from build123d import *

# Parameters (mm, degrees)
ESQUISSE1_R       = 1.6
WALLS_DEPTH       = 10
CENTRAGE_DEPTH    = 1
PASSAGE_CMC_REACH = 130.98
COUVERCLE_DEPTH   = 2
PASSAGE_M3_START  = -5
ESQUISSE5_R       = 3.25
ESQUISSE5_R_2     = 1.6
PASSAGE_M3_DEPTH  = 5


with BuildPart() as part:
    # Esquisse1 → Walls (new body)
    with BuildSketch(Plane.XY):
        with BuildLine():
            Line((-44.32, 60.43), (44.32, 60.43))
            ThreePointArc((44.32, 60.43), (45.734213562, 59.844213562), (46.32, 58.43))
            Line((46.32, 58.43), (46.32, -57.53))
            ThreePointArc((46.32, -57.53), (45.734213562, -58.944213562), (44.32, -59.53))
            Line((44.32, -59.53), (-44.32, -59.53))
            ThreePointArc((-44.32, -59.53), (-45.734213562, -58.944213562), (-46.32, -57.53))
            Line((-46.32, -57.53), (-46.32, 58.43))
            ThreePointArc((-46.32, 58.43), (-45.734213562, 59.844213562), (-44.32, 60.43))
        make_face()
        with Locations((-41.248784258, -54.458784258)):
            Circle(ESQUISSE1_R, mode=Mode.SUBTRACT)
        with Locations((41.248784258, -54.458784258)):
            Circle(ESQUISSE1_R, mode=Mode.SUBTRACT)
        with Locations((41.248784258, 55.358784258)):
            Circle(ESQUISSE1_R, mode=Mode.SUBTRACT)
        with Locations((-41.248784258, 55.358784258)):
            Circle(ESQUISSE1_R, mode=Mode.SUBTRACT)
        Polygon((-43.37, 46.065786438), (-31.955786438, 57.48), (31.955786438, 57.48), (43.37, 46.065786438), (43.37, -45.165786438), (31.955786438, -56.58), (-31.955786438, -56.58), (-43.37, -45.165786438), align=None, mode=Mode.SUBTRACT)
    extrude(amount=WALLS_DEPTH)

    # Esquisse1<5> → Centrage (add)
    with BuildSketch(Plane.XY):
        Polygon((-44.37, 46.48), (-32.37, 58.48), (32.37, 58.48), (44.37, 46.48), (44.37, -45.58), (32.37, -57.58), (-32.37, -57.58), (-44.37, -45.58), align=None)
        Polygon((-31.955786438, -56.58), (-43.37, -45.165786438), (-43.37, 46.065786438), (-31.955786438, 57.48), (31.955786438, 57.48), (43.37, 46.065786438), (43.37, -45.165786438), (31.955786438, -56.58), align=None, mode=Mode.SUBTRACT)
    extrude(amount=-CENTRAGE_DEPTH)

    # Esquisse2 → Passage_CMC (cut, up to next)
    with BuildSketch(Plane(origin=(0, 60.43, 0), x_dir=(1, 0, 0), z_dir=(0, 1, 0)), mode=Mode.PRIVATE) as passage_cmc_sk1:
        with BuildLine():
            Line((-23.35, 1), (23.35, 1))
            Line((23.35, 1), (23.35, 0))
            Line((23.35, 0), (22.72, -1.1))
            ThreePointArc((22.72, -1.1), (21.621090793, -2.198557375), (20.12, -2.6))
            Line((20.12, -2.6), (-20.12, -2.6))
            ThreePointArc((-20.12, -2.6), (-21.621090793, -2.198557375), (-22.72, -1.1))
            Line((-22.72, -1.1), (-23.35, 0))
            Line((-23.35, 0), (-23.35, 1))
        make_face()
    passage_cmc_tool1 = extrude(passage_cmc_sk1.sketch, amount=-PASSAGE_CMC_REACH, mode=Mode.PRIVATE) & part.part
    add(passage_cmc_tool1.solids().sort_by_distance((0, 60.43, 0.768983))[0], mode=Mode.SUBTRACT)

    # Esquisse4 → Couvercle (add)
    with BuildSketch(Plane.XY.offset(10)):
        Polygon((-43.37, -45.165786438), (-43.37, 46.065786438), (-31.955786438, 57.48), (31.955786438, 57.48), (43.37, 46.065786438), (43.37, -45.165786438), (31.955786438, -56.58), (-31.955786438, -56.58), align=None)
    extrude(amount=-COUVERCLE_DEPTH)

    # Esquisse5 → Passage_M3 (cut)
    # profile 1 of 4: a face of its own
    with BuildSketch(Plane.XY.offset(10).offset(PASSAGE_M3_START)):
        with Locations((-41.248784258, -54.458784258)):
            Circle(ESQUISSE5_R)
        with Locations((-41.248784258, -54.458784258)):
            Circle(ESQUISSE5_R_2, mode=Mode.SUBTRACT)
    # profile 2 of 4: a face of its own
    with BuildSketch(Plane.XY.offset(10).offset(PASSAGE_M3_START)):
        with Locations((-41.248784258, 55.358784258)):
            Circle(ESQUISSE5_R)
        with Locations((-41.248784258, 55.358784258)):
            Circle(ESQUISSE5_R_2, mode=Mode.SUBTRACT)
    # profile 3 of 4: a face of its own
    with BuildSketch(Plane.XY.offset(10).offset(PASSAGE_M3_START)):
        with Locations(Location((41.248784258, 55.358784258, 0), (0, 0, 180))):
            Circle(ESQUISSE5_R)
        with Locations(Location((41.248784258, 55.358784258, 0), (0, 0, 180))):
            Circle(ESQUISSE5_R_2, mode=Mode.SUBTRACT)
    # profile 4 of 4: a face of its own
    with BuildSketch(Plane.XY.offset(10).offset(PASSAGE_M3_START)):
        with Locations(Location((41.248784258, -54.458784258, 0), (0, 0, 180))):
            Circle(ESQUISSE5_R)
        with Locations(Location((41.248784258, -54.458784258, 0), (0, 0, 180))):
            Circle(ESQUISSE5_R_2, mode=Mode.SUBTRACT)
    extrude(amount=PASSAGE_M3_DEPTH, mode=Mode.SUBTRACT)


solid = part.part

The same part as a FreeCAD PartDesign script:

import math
import FreeCAD as App
import Part
import Sketcher


def add_polygon(sketch, points):
    """Adds a closed chain of lines whose ends are joined by coincident constraints."""
    first, n = sketch.GeometryCount, len(points)
    for a, b in zip(points, points[1:] + points[:1]):
        sketch.addGeometry(Part.LineSegment(App.Vector(*a, 0), App.Vector(*b, 0)), False)
    for i in range(n):
        sketch.addConstraint(Sketcher.Constraint("Coincident", first + i, 2, first + (i + 1) % n, 1))

doc = App.newDocument("Part")
body = doc.addObject("PartDesign::Body", "Body")

# Sketch on XY plane
sketch1 = body.newObject("Sketcher::SketchObject", "Sketch")
sketch1.AttachmentSupport = (doc.getObject("XY_Plane"), [""])
sketch1.MapMode = "FlatFace"
sketch1.addGeometry(Part.LineSegment(App.Vector(44.32, 60.43, 0), App.Vector(-44.32, 60.43, 0)), False)  # 0
sketch1.addGeometry(Part.ArcOfCircle(Part.Circle(App.Vector(-44.32, 58.43, 0), App.Vector(0, 0, 1), 2), math.radians(90), math.radians(180)), False)  # 1
sketch1.addGeometry(Part.LineSegment(App.Vector(-46.32, 58.43, 0), App.Vector(-46.32, -57.53, 0)), False)  # 2
sketch1.addGeometry(Part.ArcOfCircle(Part.Circle(App.Vector(-44.32, -57.53, 0), App.Vector(0, 0, 1), 2), math.radians(-180), math.radians(-90)), False)  # 3
sketch1.addGeometry(Part.LineSegment(App.Vector(-44.32, -59.53, 0), App.Vector(44.32, -59.53, 0)), False)  # 4
sketch1.addGeometry(Part.ArcOfCircle(Part.Circle(App.Vector(44.32, -57.53, 0), App.Vector(0, 0, 1), 2), math.radians(-90), math.radians(0)), False)  # 5
sketch1.addGeometry(Part.LineSegment(App.Vector(46.32, -57.53, 0), App.Vector(46.32, 58.43, 0)), False)  # 6
sketch1.addGeometry(Part.ArcOfCircle(Part.Circle(App.Vector(44.32, 58.43, 0), App.Vector(0, 0, 1), 2), math.radians(0), math.radians(90)), False)  # 7
sketch1.addGeometry(Part.Circle(App.Vector(41.248784, -54.458784, 0), App.Vector(0, 0, 1), 1.6), False)  # 8
sketch1.addGeometry(Part.Circle(App.Vector(-41.248784, -54.458784, 0), App.Vector(0, 0, 1), 1.6), False)  # 9
sketch1.addGeometry(Part.Circle(App.Vector(41.248784, 55.358784, 0), App.Vector(0, 0, 1), 1.6), False)  # 10
add_polygon(sketch1, [(-43.37, 46.065786), (-31.955786, 57.48), (31.955786, 57.48), (43.37, 46.065786), (43.37, -45.165786), (31.955786, -56.58), (-31.955786, -56.58), (-43.37, -45.165786)])  # lines 11-18
sketch1.addGeometry(Part.Circle(App.Vector(-41.248784, 55.358784, 0), App.Vector(0, 0, 1), 1.6), False)  # 19
sketch1.addConstraint(Sketcher.Constraint("Tangent", 0, 2, 1, 1))
sketch1.addConstraint(Sketcher.Constraint("Tangent", 1, 2, 2, 1))
sketch1.addConstraint(Sketcher.Constraint("Tangent", 2, 2, 3, 1))
sketch1.addConstraint(Sketcher.Constraint("Tangent", 3, 2, 4, 1))
sketch1.addConstraint(Sketcher.Constraint("Tangent", 4, 2, 5, 1))
sketch1.addConstraint(Sketcher.Constraint("Tangent", 5, 2, 6, 1))
sketch1.addConstraint(Sketcher.Constraint("Tangent", 6, 2, 7, 1))
sketch1.addConstraint(Sketcher.Constraint("Tangent", 7, 2, 0, 1))
sketch1.addConstraint(Sketcher.Constraint("Horizontal", 0))
sketch1.addConstraint(Sketcher.Constraint("Vertical", 2))
sketch1.addConstraint(Sketcher.Constraint("Horizontal", 4))
sketch1.addConstraint(Sketcher.Constraint("Vertical", 6))
sketch1.addConstraint(Sketcher.Constraint("Horizontal", 12))
sketch1.addConstraint(Sketcher.Constraint("Vertical", 14))
sketch1.addConstraint(Sketcher.Constraint("Horizontal", 16))
sketch1.addConstraint(Sketcher.Constraint("Vertical", 18))
sketch1.addConstraint(Sketcher.Constraint("Equal", 1, 3))
sketch1.addConstraint(Sketcher.Constraint("Equal", 3, 5))
sketch1.addConstraint(Sketcher.Constraint("Equal", 5, 7))
sketch1.addConstraint(Sketcher.Constraint("Equal", 8, 9))
sketch1.addConstraint(Sketcher.Constraint("Equal", 9, 10))
sketch1.addConstraint(Sketcher.Constraint("Equal", 10, 19))
sketch1.addConstraint(Sketcher.Constraint("Symmetric", 8, 3, 9, 3, -2))
sketch1.addConstraint(Sketcher.Constraint("Symmetric", 10, 3, 19, 3, -2))
sketch1.addConstraint(Sketcher.Constraint("Symmetric", 14, 2, 17, 2, -2))
sketch1.addConstraint(Sketcher.Constraint("Perpendicular", 11, 13))
sketch1.addConstraint(Sketcher.Constraint("Perpendicular", 13, 15))
sketch1.addConstraint(Sketcher.Constraint("Perpendicular", 15, 17))
sketch1.addConstraint(Sketcher.Constraint("Horizontal", 13, 2, 18, 2))
sketch1.addConstraint(Sketcher.Constraint("Vertical", 8, 3, 10, 3))
sketch1.addConstraint(Sketcher.Constraint("Vertical", 12, 2, 15, 2))
sketch1.addConstraint(Sketcher.Constraint("Vertical", 11, 2, 16, 2))
sketch1.addConstraint(Sketcher.Constraint("Radius", 1, 2.0))
sketch1.addConstraint(Sketcher.Constraint("Diameter", 8, 3.2))
sketch1.addConstraint(Sketcher.Constraint("DistanceX", 0, 2, 0, 1, 88.64))
sketch1.addConstraint(Sketcher.Constraint("DistanceY", 2, 2, 2, 1, 115.96))
sketch1.addConstraint(Sketcher.Constraint("DistanceX", 1, 3, -1, 1, 44.32))
sketch1.addConstraint(Sketcher.Constraint("DistanceY", -1, 1, 1, 3, 58.43))
sketch1.addConstraint(Sketcher.Constraint("DistanceY", -1, 1, 11, 2, 57.48))
sketch1.addConstraint(Sketcher.Constraint("DistanceX", -1, 1, 13, 2, 43.37))
sketch1.addConstraint(Sketcher.Constraint("DistanceY", 15, 2, -1, 1, 56.58))
sketch1.addConstraint(Sketcher.Constraint("DistanceX", 12, 1, 12, 2, 63.911573))
sketch1.addConstraint(Sketcher.Constraint("DistanceX", 9, 3, 8, 3, 82.497569))
sketch1.addConstraint(Sketcher.Constraint("DistanceY", 8, 3, 10, 3, 109.817569))
sketch1.addConstraint(Sketcher.Constraint("DistanceY", 8, 3, -1, 1, 54.458784))
pad1 = body.newObject("PartDesign::Pad", "Pad")
pad1.Profile = sketch1
pad1.Length = 10

# Sketch on XY plane
sketch2 = body.newObject("Sketcher::SketchObject", "Sketch001")
sketch2.AttachmentSupport = (doc.getObject("XY_Plane"), [""])
sketch2.MapMode = "FlatFace"
add_polygon(sketch2, [(-32.37, 58.48), (-44.37, 46.48), (-44.37, -45.58), (-32.37, -57.58), (32.37, -57.58), (44.37, -45.58), (44.37, 46.48), (32.37, 58.48)])  # lines 0-7
add_polygon(sketch2, [(-31.955786, -56.58), (-43.37, -45.165786), (-43.37, 46.065786), (-31.955786, 57.48), (31.955786, 57.48), (43.37, 46.065786), (43.37, -45.165786), (31.955786, -56.58)])  # lines 8-15
sketch2.addConstraint(Sketcher.Constraint("Vertical", 1))
sketch2.addConstraint(Sketcher.Constraint("Horizontal", 3))
sketch2.addConstraint(Sketcher.Constraint("Vertical", 5))
sketch2.addConstraint(Sketcher.Constraint("Horizontal", 7))
sketch2.addConstraint(Sketcher.Constraint("Vertical", 9))
sketch2.addConstraint(Sketcher.Constraint("Horizontal", 11))
sketch2.addConstraint(Sketcher.Constraint("Vertical", 13))
sketch2.addConstraint(Sketcher.Constraint("Horizontal", 15))
sketch2.addConstraint(Sketcher.Constraint("Symmetric", 1, 2, 4, 2, -2))
sketch2.addConstraint(Sketcher.Constraint("Symmetric", 9, 2, 12, 2, -2))
sketch2.addConstraint(Sketcher.Constraint("Perpendicular", 0, 2))
sketch2.addConstraint(Sketcher.Constraint("Perpendicular", 2, 4))
sketch2.addConstraint(Sketcher.Constraint("Perpendicular", 4, 6))
sketch2.addConstraint(Sketcher.Constraint("Parallel", 6, 8))
sketch2.addConstraint(Sketcher.Constraint("Perpendicular", 8, 10))
sketch2.addConstraint(Sketcher.Constraint("Perpendicular", 10, 12))
sketch2.addConstraint(Sketcher.Constraint("Perpendicular", 12, 14))
sketch2.addConstraint(Sketcher.Constraint("Horizontal", 0, 2, 5, 2))
sketch2.addConstraint(Sketcher.Constraint("Horizontal", 8, 2, 13, 2))
sketch2.addConstraint(Sketcher.Constraint("Vertical", 3, 2, 6, 2))
sketch2.addConstraint(Sketcher.Constraint("Vertical", 2, 2, 7, 2))
sketch2.addConstraint(Sketcher.Constraint("Vertical", 11, 2, 14, 2))
sketch2.addConstraint(Sketcher.Constraint("DistanceX", 1, 2, 2, 2, 12.0))
sketch2.addConstraint(Sketcher.Constraint("DistanceX", 1, 2, 8, 2, 1.0))
sketch2.addConstraint(Sketcher.Constraint("DistanceY", 10, 2, 7, 2, 1.0))
sketch2.addConstraint(Sketcher.Constraint("DistanceY", 3, 2, 14, 2, 1.0))
sketch2.addConstraint(Sketcher.Constraint("DistanceX", 3, 1, 3, 2, 64.74))
sketch2.addConstraint(Sketcher.Constraint("DistanceY", 1, 2, 1, 1, 92.06))
sketch2.addConstraint(Sketcher.Constraint("DistanceY", -1, 1, 0, 2, 46.48))
sketch2.addConstraint(Sketcher.Constraint("DistanceX", 11, 1, 11, 2, 63.911573))
pad2 = body.newObject("PartDesign::Pad", "Pad001")
pad2.Profile = sketch2
pad2.Length = 1
pad2.Reversed = True

# Sketch on XZ plane
sketch3 = body.newObject("Sketcher::SketchObject", "Sketch002")
sketch3.AttachmentSupport = (doc.getObject("XZ_Plane"), [""])
sketch3.MapMode = "FlatFace"
sketch3.AttachmentOffset = App.Placement(App.Vector(0, 0, -60.43), App.Rotation())
sketch3.addGeometry(Part.LineSegment(App.Vector(23.35, -1, 0), App.Vector(-23.35, -1, 0)), False)
sketch3.addGeometry(Part.LineSegment(App.Vector(-23.35, -1, 0), App.Vector(-23.35, 0, 0)), False)
sketch3.addGeometry(Part.LineSegment(App.Vector(-23.35, 0, 0), App.Vector(-22.72, 1.1, 0)), False)
sketch3.addGeometry(Part.ArcOfCircle(Part.Circle(App.Vector(-20.121923, -0.399999, 0), App.Vector(0, 0, 1), 3), math.radians(89.963265), math.radians(150.000014)), False)
sketch3.addGeometry(Part.LineSegment(App.Vector(-20.12, 2.6, 0), App.Vector(20.12, 2.6, 0)), False)
sketch3.addGeometry(Part.ArcOfCircle(Part.Circle(App.Vector(20.121923, -0.399999, 0), App.Vector(0, 0, 1), 3), math.radians(29.999986), math.radians(90.036735)), False)
sketch3.addGeometry(Part.LineSegment(App.Vector(22.72, 1.1, 0), App.Vector(23.35, 0, 0)), False)
sketch3.addGeometry(Part.LineSegment(App.Vector(23.35, 0, 0), App.Vector(23.35, -1, 0)), False)
sketch3.addConstraint(Sketcher.Constraint("Coincident", 0, 2, 1, 1))
sketch3.addConstraint(Sketcher.Constraint("Coincident", 1, 2, 2, 1))
sketch3.addConstraint(Sketcher.Constraint("Coincident", 2, 2, 3, 2))
sketch3.addConstraint(Sketcher.Constraint("Coincident", 3, 1, 4, 1))
sketch3.addConstraint(Sketcher.Constraint("Coincident", 4, 2, 5, 2))
sketch3.addConstraint(Sketcher.Constraint("Coincident", 5, 1, 6, 1))
sketch3.addConstraint(Sketcher.Constraint("Coincident", 6, 2, 7, 1))
sketch3.addConstraint(Sketcher.Constraint("Coincident", 7, 2, 0, 1))
sketch3.addConstraint(Sketcher.Constraint("Horizontal", 0))
sketch3.addConstraint(Sketcher.Constraint("Vertical", 1))
sketch3.addConstraint(Sketcher.Constraint("Horizontal", 4))
sketch3.addConstraint(Sketcher.Constraint("Vertical", 7))
sketch3.addConstraint(Sketcher.Constraint("Equal", 3, 5))
sketch3.addConstraint(Sketcher.Constraint("Symmetric", 1, 2, 6, 2, -1, 1))
sketch3.addConstraint(Sketcher.Constraint("Symmetric", 2, 2, 5, 1, -2))
sketch3.addConstraint(Sketcher.Constraint("PointOnObject", 1, 2, -1))
sketch3.addConstraint(Sketcher.Constraint("Radius", 3, 3.0))
sketch3.addConstraint(Sketcher.Constraint("DistanceY", 1, 1, 1, 2, 1.0))
sketch3.addConstraint(Sketcher.Constraint("DistanceX", 0, 2, 0, 1, 46.7))
sketch3.addConstraint(Sketcher.Constraint("DistanceX", 4, 1, 4, 2, 40.24))
sketch3.addConstraint(Sketcher.Constraint("DistanceY", 3, 3, -1, 1, 0.399999))
sketch3.addConstraint(Sketcher.Constraint("DistanceY", -1, 1, 2, 2, 1.1))
sketch3.addConstraint(Sketcher.Constraint("DistanceX", 2, 2, 3, 1, 2.6))
sketch3.addConstraint(Sketcher.Constraint("DistanceX", 4, 2, 5, 1, 2.6))
pocket1 = body.newObject("PartDesign::Pocket", "Pocket")
pocket1.Profile = sketch3
pocket1.Type = "UpToFirst"
pocket1.Reversed = True

# Sketch on XY plane
sketch4 = body.newObject("Sketcher::SketchObject", "Sketch003")
sketch4.AttachmentSupport = (doc.getObject("XY_Plane"), [""])
sketch4.MapMode = "FlatFace"
sketch4.AttachmentOffset = App.Placement(App.Vector(0, 0, 10), App.Rotation())
add_polygon(sketch4, [(-43.37, 46.065786), (-43.37, -45.165786), (-31.955786, -56.58), (31.955786, -56.58), (43.37, -45.165786), (43.37, 46.065786), (31.955786, 57.48), (-31.955786, 57.48)])  # lines 0-7
sketch4.addConstraint(Sketcher.Constraint("Vertical", 0))
sketch4.addConstraint(Sketcher.Constraint("Horizontal", 2))
sketch4.addConstraint(Sketcher.Constraint("Vertical", 4))
sketch4.addConstraint(Sketcher.Constraint("Horizontal", 6))
sketch4.addConstraint(Sketcher.Constraint("Symmetric", 0, 2, 3, 2, -2))
sketch4.addConstraint(Sketcher.Constraint("Perpendicular", 1, 3))
sketch4.addConstraint(Sketcher.Constraint("Perpendicular", 3, 5))
sketch4.addConstraint(Sketcher.Constraint("Perpendicular", 5, 7))
sketch4.addConstraint(Sketcher.Constraint("Horizontal", 4, 2, 7, 2))
sketch4.addConstraint(Sketcher.Constraint("Vertical", 2, 2, 5, 2))
sketch4.addConstraint(Sketcher.Constraint("Vertical", 1, 2, 6, 2))
sketch4.addConstraint(Sketcher.Constraint("DistanceX", 0, 2, -1, 1, 43.37))
sketch4.addConstraint(Sketcher.Constraint("DistanceY", 1, 2, -1, 1, 56.58))
sketch4.addConstraint(Sketcher.Constraint("DistanceY", -1, 1, 5, 2, 57.48))
sketch4.addConstraint(Sketcher.Constraint("DistanceX", 2, 1, 2, 2, 63.911573))
pad3 = body.newObject("PartDesign::Pad", "Pad002")
pad3.Profile = sketch4
pad3.Length = 2
pad3.Reversed = True

# Sketch on XY plane
sketch5 = body.newObject("Sketcher::SketchObject", "Sketch004")
sketch5.AttachmentSupport = (doc.getObject("XY_Plane"), [""])
sketch5.MapMode = "FlatFace"
sketch5.AttachmentOffset = App.Placement(App.Vector(0, 0, 5), App.Rotation())
sketch5.addGeometry(Part.Circle(App.Vector(-41.248784, -54.458784, 0), App.Vector(0, 0, 1), 3.25), False)
sketch5.addGeometry(Part.Circle(App.Vector(-41.248784, -54.458784, 0), App.Vector(0, 0, 1), 1.6), False)
sketch5.addGeometry(Part.Circle(App.Vector(-41.248784, 55.358784, 0), App.Vector(0, 0, 1), 3.25), False)
sketch5.addGeometry(Part.Circle(App.Vector(-41.248784, 55.358784, 0), App.Vector(0, 0, 1), 1.6), False)
sketch5.addGeometry(Part.Circle(App.Vector(41.248784, 55.358784, 0), App.Vector(0, 0, 1), 3.25), False)
sketch5.addGeometry(Part.Circle(App.Vector(41.248784, 55.358784, 0), App.Vector(0, 0, 1), 1.6), False)
sketch5.addGeometry(Part.Circle(App.Vector(41.248784, -54.458784, 0), App.Vector(0, 0, 1), 3.25), False)
sketch5.addGeometry(Part.Circle(App.Vector(41.248784, -54.458784, 0), App.Vector(0, 0, 1), 1.6), False)
sketch5.addConstraint(Sketcher.Constraint("Coincident", 1, 3, 0, 3))
sketch5.addConstraint(Sketcher.Constraint("Coincident", 3, 3, 2, 3))
sketch5.addConstraint(Sketcher.Constraint("Coincident", 5, 3, 4, 3))
sketch5.addConstraint(Sketcher.Constraint("Coincident", 7, 3, 6, 3))
sketch5.addConstraint(Sketcher.Constraint("Equal", 0, 2))
sketch5.addConstraint(Sketcher.Constraint("Equal", 1, 3))
sketch5.addConstraint(Sketcher.Constraint("Equal", 2, 4))
sketch5.addConstraint(Sketcher.Constraint("Equal", 3, 5))
sketch5.addConstraint(Sketcher.Constraint("Equal", 4, 6))
sketch5.addConstraint(Sketcher.Constraint("Equal", 5, 7))
sketch5.addConstraint(Sketcher.Constraint("Symmetric", 2, 3, 4, 3, -2))
sketch5.addConstraint(Sketcher.Constraint("Symmetric", 0, 3, 6, 3, -2))
sketch5.addConstraint(Sketcher.Constraint("Vertical", 1, 3, 2, 3))
sketch5.addConstraint(Sketcher.Constraint("Diameter", 0, 6.5))
sketch5.addConstraint(Sketcher.Constraint("Diameter", 1, 3.2))
sketch5.addConstraint(Sketcher.Constraint("DistanceY", 0, 3, 2, 3, 109.817569))
sketch5.addConstraint(Sketcher.Constraint("DistanceX", 2, 3, 4, 3, 82.497569))
sketch5.addConstraint(Sketcher.Constraint("DistanceY", 0, 3, -1, 1, 54.458784))
pocket2 = body.newObject("PartDesign::Pocket", "Pocket001")
pocket2.Profile = sketch5
pocket2.Length = 5
pocket2.Reversed = True

doc.recompute()
